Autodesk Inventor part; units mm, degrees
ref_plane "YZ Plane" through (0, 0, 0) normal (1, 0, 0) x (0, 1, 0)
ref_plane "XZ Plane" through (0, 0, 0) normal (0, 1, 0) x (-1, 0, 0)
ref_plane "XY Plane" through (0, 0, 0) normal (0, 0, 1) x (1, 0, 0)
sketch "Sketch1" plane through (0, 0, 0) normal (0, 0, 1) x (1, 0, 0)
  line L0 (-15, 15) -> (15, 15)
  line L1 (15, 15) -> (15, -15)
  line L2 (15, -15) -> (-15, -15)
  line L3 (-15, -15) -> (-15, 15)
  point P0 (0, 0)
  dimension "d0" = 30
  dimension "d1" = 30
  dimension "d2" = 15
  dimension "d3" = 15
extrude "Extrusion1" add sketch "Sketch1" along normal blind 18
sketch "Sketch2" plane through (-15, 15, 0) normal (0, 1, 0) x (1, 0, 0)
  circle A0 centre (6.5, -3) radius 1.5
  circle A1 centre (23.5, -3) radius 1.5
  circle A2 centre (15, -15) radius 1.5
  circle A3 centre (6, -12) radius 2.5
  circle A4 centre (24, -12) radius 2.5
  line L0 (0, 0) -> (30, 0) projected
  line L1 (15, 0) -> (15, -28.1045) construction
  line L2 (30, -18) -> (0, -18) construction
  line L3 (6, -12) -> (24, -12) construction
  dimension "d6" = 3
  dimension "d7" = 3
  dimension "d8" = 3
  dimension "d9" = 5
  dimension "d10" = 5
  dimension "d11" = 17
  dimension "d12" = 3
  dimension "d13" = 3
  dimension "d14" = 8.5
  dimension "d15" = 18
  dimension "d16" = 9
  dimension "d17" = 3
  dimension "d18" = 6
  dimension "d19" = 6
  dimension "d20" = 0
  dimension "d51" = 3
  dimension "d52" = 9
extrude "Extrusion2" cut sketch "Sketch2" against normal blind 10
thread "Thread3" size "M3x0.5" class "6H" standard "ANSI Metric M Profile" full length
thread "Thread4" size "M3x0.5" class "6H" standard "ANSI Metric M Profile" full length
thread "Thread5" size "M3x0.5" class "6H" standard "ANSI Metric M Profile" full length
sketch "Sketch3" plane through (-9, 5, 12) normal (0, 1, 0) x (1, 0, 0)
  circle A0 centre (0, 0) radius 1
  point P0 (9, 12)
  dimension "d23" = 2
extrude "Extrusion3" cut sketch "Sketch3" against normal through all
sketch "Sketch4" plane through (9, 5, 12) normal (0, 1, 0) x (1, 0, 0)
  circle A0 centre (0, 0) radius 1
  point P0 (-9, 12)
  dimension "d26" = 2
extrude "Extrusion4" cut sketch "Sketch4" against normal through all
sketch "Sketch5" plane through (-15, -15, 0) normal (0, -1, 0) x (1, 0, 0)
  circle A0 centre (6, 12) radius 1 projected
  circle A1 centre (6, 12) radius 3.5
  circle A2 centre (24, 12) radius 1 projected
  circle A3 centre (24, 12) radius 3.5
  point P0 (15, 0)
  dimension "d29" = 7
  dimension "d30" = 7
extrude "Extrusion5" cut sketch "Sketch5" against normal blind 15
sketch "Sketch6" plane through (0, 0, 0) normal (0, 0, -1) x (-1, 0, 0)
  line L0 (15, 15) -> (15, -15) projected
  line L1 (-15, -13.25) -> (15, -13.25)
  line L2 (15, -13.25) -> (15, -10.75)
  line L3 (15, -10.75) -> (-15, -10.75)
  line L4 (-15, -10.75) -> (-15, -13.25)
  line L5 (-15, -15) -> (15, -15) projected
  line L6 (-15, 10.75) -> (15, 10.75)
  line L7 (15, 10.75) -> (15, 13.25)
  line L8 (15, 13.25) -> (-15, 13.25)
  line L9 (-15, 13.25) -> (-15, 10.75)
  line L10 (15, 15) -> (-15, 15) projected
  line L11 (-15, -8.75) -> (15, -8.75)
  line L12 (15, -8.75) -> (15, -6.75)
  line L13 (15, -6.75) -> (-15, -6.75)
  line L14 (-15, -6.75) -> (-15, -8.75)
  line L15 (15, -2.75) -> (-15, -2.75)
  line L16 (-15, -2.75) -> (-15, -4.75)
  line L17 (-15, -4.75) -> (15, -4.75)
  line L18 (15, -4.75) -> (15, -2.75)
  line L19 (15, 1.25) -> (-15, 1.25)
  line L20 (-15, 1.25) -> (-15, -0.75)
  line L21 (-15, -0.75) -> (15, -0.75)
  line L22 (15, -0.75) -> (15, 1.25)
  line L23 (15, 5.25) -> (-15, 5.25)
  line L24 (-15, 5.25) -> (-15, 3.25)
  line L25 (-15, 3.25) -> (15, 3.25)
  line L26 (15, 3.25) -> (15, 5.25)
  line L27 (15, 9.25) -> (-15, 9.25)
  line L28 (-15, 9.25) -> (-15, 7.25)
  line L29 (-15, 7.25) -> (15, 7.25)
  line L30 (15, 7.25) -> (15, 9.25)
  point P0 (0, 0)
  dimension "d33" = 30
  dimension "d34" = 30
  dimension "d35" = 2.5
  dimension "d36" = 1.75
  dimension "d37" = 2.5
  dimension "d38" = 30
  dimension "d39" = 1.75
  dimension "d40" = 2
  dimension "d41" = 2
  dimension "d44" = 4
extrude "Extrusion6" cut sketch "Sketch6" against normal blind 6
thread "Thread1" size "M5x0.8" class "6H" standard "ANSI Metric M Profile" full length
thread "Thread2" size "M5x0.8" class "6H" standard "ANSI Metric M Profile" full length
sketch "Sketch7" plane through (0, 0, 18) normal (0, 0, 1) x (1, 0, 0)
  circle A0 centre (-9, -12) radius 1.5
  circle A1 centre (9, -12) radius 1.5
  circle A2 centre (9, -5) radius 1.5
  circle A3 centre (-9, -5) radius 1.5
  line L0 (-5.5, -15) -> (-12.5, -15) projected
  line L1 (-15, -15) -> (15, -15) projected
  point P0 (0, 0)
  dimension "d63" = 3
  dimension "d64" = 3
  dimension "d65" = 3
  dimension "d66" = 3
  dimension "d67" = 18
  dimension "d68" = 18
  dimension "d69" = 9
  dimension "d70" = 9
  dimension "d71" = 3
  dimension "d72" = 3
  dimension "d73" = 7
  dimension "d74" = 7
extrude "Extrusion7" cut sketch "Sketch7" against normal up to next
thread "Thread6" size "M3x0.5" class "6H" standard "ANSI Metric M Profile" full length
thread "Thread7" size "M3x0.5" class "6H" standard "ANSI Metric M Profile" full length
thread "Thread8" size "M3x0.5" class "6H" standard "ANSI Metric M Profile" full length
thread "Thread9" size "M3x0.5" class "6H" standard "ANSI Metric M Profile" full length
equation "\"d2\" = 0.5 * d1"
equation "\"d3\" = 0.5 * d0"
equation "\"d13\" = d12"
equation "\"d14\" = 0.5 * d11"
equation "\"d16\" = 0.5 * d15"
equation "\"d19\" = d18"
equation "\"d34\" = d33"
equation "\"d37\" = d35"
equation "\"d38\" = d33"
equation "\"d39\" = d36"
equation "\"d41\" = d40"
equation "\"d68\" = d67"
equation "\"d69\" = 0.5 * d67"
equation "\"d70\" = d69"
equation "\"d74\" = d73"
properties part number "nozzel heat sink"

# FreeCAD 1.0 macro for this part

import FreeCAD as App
import Part
import Sketcher
from FreeCAD import Vector

doc = App.newDocument("Part")
body = doc.addObject("PartDesign::Body", "Body")

# Sketch on XY plane
sketch1 = body.newObject("Sketcher::SketchObject", "Sketch")
sketch1.AttachmentSupport = (doc.getObject("XY_Plane"), [""])
sketch1.MapMode = "FlatFace"
sketch1.addGeometry([
    Part.LineSegment(Vector(15, 15, 0), Vector(-15, 15, 0)),
    Part.LineSegment(Vector(-15, 15, 0), Vector(-15, -15, 0)),
    Part.LineSegment(Vector(-15, -15, 0), Vector(15, -15, 0)),
    Part.LineSegment(Vector(15, -15, 0), Vector(15, 15, 0)),
], False)
sketch1.addConstraint([
    Sketcher.Constraint("Coincident", 0, 2, 1, 1),
    Sketcher.Constraint("Coincident", 1, 2, 2, 1),
    Sketcher.Constraint("Coincident", 2, 2, 3, 1),
    Sketcher.Constraint("Coincident", 3, 2, 0, 1),
    Sketcher.Constraint("Horizontal", 0),
    Sketcher.Constraint("Vertical", 1),
    Sketcher.Constraint("Horizontal", 2),
    Sketcher.Constraint("Vertical", 3),
    Sketcher.Constraint("Symmetric", 0, 2, 2, 2, -1, 1),
    Sketcher.Constraint("Equal", 2, 1),
    Sketcher.Constraint("DistanceX", 0, 2, 0, 1, 30.0),
])
pad1 = body.newObject("PartDesign::Pad", "Pad")
pad1.Profile = sketch1
pad1.Length = 18

# Sketch on XZ plane
sketch2 = body.newObject("Sketcher::SketchObject", "Sketch001")
sketch2.AttachmentSupport = (doc.getObject("XZ_Plane"), [""])
sketch2.MapMode = "FlatFace"
sketch2.AttachmentOffset = App.Placement(Vector(0, 0, -15), App.Rotation())
sketch2.addGeometry([
    Part.Circle(Vector(-8.5, 3, 0), Vector(0, 0, 1), 1.5),  # 0
    Part.Circle(Vector(8.5, 3, 0), Vector(0, 0, 1), 1.5),  # 1
    Part.Circle(Vector(0, 15, 0), Vector(0, 0, 1), 1.5),  # 2
    Part.Circle(Vector(-9, 12, 0), Vector(0, 0, 1), 2.5),  # 3
    Part.Circle(Vector(9, 12, 0), Vector(0, 0, 1), 2.5),  # 4
], False)
sketch2.addConstraint([
    Sketcher.Constraint("Equal", 0, 1),
    Sketcher.Constraint("Equal", 1, 2),
    Sketcher.Constraint("Equal", 3, 4),
    Sketcher.Constraint("Symmetric", 0, 3, 1, 3, -2),
    Sketcher.Constraint("Symmetric", 3, 3, 4, 3, -2),
    Sketcher.Constraint("PointOnObject", 2, 3, -2),
    Sketcher.Constraint("Diameter", 0, 3.0),
    Sketcher.Constraint("Diameter", 3, 5.0),
    Sketcher.Constraint("DistanceY", -1, 1, 0, 3, 3.0),
    Sketcher.Constraint("DistanceX", 3, 3, -1, 1, 9.0),
    Sketcher.Constraint("DistanceX", 0, 3, 1, 3, 17.0),
    Sketcher.Constraint("DistanceY", 0, 3, 3, 3, 9.0),
    Sketcher.Constraint("DistanceY", 3, 3, 2, 3, 3.0),
])
pocket1 = body.newObject("PartDesign::Pocket", "Pocket")
pocket1.Profile = sketch2
pocket1.Length = 10
pocket1.Reversed = True

# Sketch on XZ plane
sketch3 = body.newObject("Sketcher::SketchObject", "Sketch002")
sketch3.AttachmentSupport = (doc.getObject("XZ_Plane"), [""])
sketch3.MapMode = "FlatFace"
sketch3.AttachmentOffset = App.Placement(Vector(0, 0, -5), App.Rotation())
sketch3.addGeometry(Part.Circle(Vector(-9, 12, 0), Vector(0, 0, 1), 1), False)
sketch3.addConstraint([
    Sketcher.Constraint("Diameter", 0, 2.0),
    Sketcher.Constraint("DistanceX", 0, 3, -1, 1, 9.0),
    Sketcher.Constraint("DistanceY", -1, 1, 0, 3, 12.0),
])
pocket2 = body.newObject("PartDesign::Pocket", "Pocket001")
pocket2.Profile = sketch3
pocket2.Type = "ThroughAll"
pocket2.Reversed = True

# Sketch on XZ plane
sketch4 = body.newObject("Sketcher::SketchObject", "Sketch003")
sketch4.AttachmentSupport = (doc.getObject("XZ_Plane"), [""])
sketch4.MapMode = "FlatFace"
sketch4.AttachmentOffset = App.Placement(Vector(0, 0, -5), App.Rotation())
sketch4.addGeometry(Part.Circle(Vector(9, 12, 0), Vector(0, 0, 1), 1), False)
sketch4.addConstraint([
    Sketcher.Constraint("Diameter", 0, 2.0),
    Sketcher.Constraint("DistanceX", -1, 1, 0, 3, 9.0),
    Sketcher.Constraint("DistanceY", -1, 1, 0, 3, 12.0),
])
pocket3 = body.newObject("PartDesign::Pocket", "Pocket002")
pocket3.Profile = sketch4
pocket3.Type = "ThroughAll"
pocket3.Reversed = True

# Sketch on XZ plane
sketch5 = body.newObject("Sketcher::SketchObject", "Sketch004")
sketch5.AttachmentSupport = (doc.getObject("XZ_Plane"), [""])
sketch5.MapMode = "FlatFace"
sketch5.AttachmentOffset = App.Placement(Vector(0, 0, 15), App.Rotation())
sketch5.addGeometry([
    Part.Circle(Vector(-9, 12, 0), Vector(0, 0, 1), 3.5),
    Part.Circle(Vector(-9, 12, 0), Vector(0, 0, 1), 1),
    Part.Circle(Vector(9, 12, 0), Vector(0, 0, 1), 3.5),
    Part.Circle(Vector(9, 12, 0), Vector(0, 0, 1), 1),
], False)
sketch5.addConstraint([
    Sketcher.Constraint("Coincident", 1, 3, 0, 3),
    Sketcher.Constraint("Coincident", 3, 3, 2, 3),
    Sketcher.Constraint("Equal", 0, 2),
    Sketcher.Constraint("Equal", 1, 3),
    Sketcher.Constraint("Symmetric", 0, 3, 2, 3, -2),
    Sketcher.Constraint("Diameter", 0, 7.0),
    Sketcher.Constraint("Diameter", 1, 2.0),
    Sketcher.Constraint("DistanceX", 0, 3, -1, 1, 9.0),
    Sketcher.Constraint("DistanceY", -1, 1, 0, 3, 12.0),
])
pocket4 = body.newObject("PartDesign::Pocket", "Pocket003")
pocket4.Profile = sketch5
pocket4.Length = 15

# Sketch on XY plane
sketch6 = body.newObject("Sketcher::SketchObject", "Sketch005")
sketch6.AttachmentSupport = (doc.getObject("XY_Plane"), [""])
sketch6.MapMode = "FlatFace"
sketch6.addGeometry([
    Part.LineSegment(Vector(-15, -13.2, 0), Vector(-15, -10.8, 0)),  # 0
    Part.LineSegment(Vector(-15, -10.8, 0), Vector(15, -10.8, 0)),  # 1
    Part.LineSegment(Vector(15, -10.8, 0), Vector(15, -13.2, 0)),  # 2
    Part.LineSegment(Vector(15, -13.2, 0), Vector(-15, -13.2, 0)),  # 3
    Part.LineSegment(Vector(-15, -8.8, 0), Vector(-15, -6.8, 0)),  # 4
    Part.LineSegment(Vector(-15, -6.8, 0), Vector(15, -6.8, 0)),  # 5
    Part.LineSegment(Vector(15, -6.8, 0), Vector(15, -8.8, 0)),  # 6
    Part.LineSegment(Vector(15, -8.8, 0), Vector(-15, -8.8, 0)),  # 7
    Part.LineSegment(Vector(-15, -4.8, 0), Vector(-15, -2.8, 0)),  # 8
    Part.LineSegment(Vector(-15, -2.8, 0), Vector(15, -2.8, 0)),  # 9
    Part.LineSegment(Vector(15, -2.8, 0), Vector(15, -4.8, 0)),  # 10
    Part.LineSegment(Vector(15, -4.8, 0), Vector(-15, -4.8, 0)),  # 11
    Part.LineSegment(Vector(-15, -0.8, 0), Vector(-15, 1.2, 0)),  # 12
    Part.LineSegment(Vector(-15, 1.2, 0), Vector(15, 1.2, 0)),  # 13
    Part.LineSegment(Vector(15, 1.2, 0), Vector(15, -0.8, 0)),  # 14
    Part.LineSegment(Vector(15, -0.8, 0), Vector(-15, -0.8, 0)),  # 15
    Part.LineSegment(Vector(-15, 3.2, 0), Vector(-15, 5.2, 0)),  # 16
    Part.LineSegment(Vector(-15, 5.2, 0), Vector(15, 5.2, 0)),  # 17
    Part.LineSegment(Vector(15, 5.2, 0), Vector(15, 3.2, 0)),  # 18
    Part.LineSegment(Vector(15, 3.2, 0), Vector(-15, 3.2, 0)),  # 19
    Part.LineSegment(Vector(-15, 7.2, 0), Vector(-15, 9.2, 0)),  # 20
    Part.LineSegment(Vector(-15, 9.2, 0), Vector(15, 9.2, 0)),  # 21
    Part.LineSegment(Vector(15, 9.2, 0), Vector(15, 7.2, 0)),  # 22
    Part.LineSegment(Vector(15, 7.2, 0), Vector(-15, 7.2, 0)),  # 23
    Part.LineSegment(Vector(-15, 10.8, 0), Vector(-15, 13.2, 0)),  # 24
    Part.LineSegment(Vector(-15, 13.2, 0), Vector(15, 13.2, 0)),  # 25
    Part.LineSegment(Vector(15, 13.2, 0), Vector(15, 10.8, 0)),  # 26
    Part.LineSegment(Vector(15, 10.8, 0), Vector(-15, 10.8, 0)),  # 27
], False)
sketch6.addConstraint([
    Sketcher.Constraint("Coincident", 0, 2, 1, 1),
    Sketcher.Constraint("Coincident", 1, 2, 2, 1),
    Sketcher.Constraint("Coincident", 2, 2, 3, 1),
    Sketcher.Constraint("Coincident", 3, 2, 0, 1),
    Sketcher.Constraint("Coincident", 4, 2, 5, 1),
    Sketcher.Constraint("Coincident", 5, 2, 6, 1),
    Sketcher.Constraint("Coincident", 6, 2, 7, 1),
    Sketcher.Constraint("Coincident", 7, 2, 4, 1),
    Sketcher.Constraint("Coincident", 8, 2, 9, 1),
    Sketcher.Constraint("Coincident", 9, 2, 10, 1),
    Sketcher.Constraint("Coincident", 10, 2, 11, 1),
    Sketcher.Constraint("Coincident", 11, 2, 8, 1),
    Sketcher.Constraint("Coincident", 12, 2, 13, 1),
    Sketcher.Constraint("Coincident", 13, 2, 14, 1),
    Sketcher.Constraint("Coincident", 14, 2, 15, 1),
    Sketcher.Constraint("Coincident", 15, 2, 12, 1),
    Sketcher.Constraint("Coincident", 16, 2, 17, 1),
    Sketcher.Constraint("Coincident", 17, 2, 18, 1),
    Sketcher.Constraint("Coincident", 18, 2, 19, 1),
    Sketcher.Constraint("Coincident", 19, 2, 16, 1),
    Sketcher.Constraint("Coincident", 20, 2, 21, 1),
    Sketcher.Constraint("Coincident", 21, 2, 22, 1),
    Sketcher.Constraint("Coincident", 22, 2, 23, 1),
    Sketcher.Constraint("Coincident", 23, 2, 20, 1),
    Sketcher.Constraint("Coincident", 24, 2, 25, 1),
    Sketcher.Constraint("Coincident", 25, 2, 26, 1),
    Sketcher.Constraint("Coincident", 26, 2, 27, 1),
    Sketcher.Constraint("Coincident", 27, 2, 24, 1),
    Sketcher.Constraint("Vertical", 0),
    Sketcher.Constraint("Horizontal", 1),
    Sketcher.Constraint("Vertical", 2),
    Sketcher.Constraint("Horizontal", 3),
    Sketcher.Constraint("Vertical", 4),
    Sketcher.Constraint("Horizontal", 5),
    Sketcher.Constraint("Vertical", 6),
    Sketcher.Constraint("Horizontal", 7),
    Sketcher.Constraint("Vertical", 8),
    Sketcher.Constraint("Horizontal", 9),
    Sketcher.Constraint("Vertical", 10),
    Sketcher.Constraint("Horizontal", 11),
    Sketcher.Constraint("Vertical", 12),
    Sketcher.Constraint("Horizontal", 13),
    Sketcher.Constraint("Vertical", 14),
    Sketcher.Constraint("Horizontal", 15),
    Sketcher.Constraint("Vertical", 16),
    Sketcher.Constraint("Horizontal", 17),
    Sketcher.Constraint("Vertical", 18),
    Sketcher.Constraint("Horizontal", 19),
    Sketcher.Constraint("Vertical", 20),
    Sketcher.Constraint("Horizontal", 21),
    Sketcher.Constraint("Vertical", 22),
    Sketcher.Constraint("Horizontal", 23),
    Sketcher.Constraint("Vertical", 24),
    Sketcher.Constraint("Horizontal", 25),
    Sketcher.Constraint("Vertical", 26),
    Sketcher.Constraint("Horizontal", 27),
    Sketcher.Constraint("Symmetric", 2, 2, 24, 2, -1, 1),
    Sketcher.Constraint("Symmetric", 0, 2, 26, 2, -1, 1),
    Sketcher.Constraint("Vertical", 3, 2, 4, 2),
    Sketcher.Constraint("Vertical", 2, 2, 5, 2),
    Sketcher.Constraint("Vertical", 7, 2, 8, 2),
    Sketcher.Constraint("Vertical", 6, 2, 9, 2),
    Sketcher.Constraint("Vertical", 11, 2, 12, 2),
    Sketcher.Constraint("Vertical", 10, 2, 13, 2),
    Sketcher.Constraint("Vertical", 15, 2, 16, 2),
    Sketcher.Constraint("Vertical", 14, 2, 17, 2),
    Sketcher.Constraint("Vertical", 19, 2, 20, 2),
    Sketcher.Constraint("Vertical", 18, 2, 21, 2),
    Sketcher.Constraint("Vertical", 23, 2, 24, 2),
    Sketcher.Constraint("Equal", 6, 8),
    Sketcher.Constraint("Equal", 10, 12),
    Sketcher.Constraint("Equal", 14, 16),
    Sketcher.Constraint("Equal", 18, 20),
    Sketcher.Constraint("DistanceX", 1, 1, 1, 2, 30.0),
    Sketcher.Constraint("DistanceY", 4, 1, 4, 2, 2.0),
    Sketcher.Constraint("DistanceY", 0, 1, 0, 2, 2.5),
    Sketcher.Constraint("DistanceY", 0, 2, 4, 2, 4.0),
    Sketcher.Constraint("DistanceY", 4, 2, 8, 2, 4.0),
    Sketcher.Constraint("DistanceY", 8, 2, 12, 2, 4.0),
    Sketcher.Constraint("DistanceY", 12, 2, 16, 2, 4.0),
    Sketcher.Constraint("DistanceY", 16, 2, 20, 2, 4.0),
    Sketcher.Constraint("DistanceY", 20, 2, 24, 2, 4.0),
])
pocket5 = body.newObject("PartDesign::Pocket", "Pocket004")
pocket5.Profile = sketch6
pocket5.Length = 6
pocket5.Reversed = True

# Sketch on XY plane
sketch7 = body.newObject("Sketcher::SketchObject", "Sketch006")
sketch7.AttachmentSupport = (doc.getObject("XY_Plane"), [""])
sketch7.MapMode = "FlatFace"
sketch7.AttachmentOffset = App.Placement(Vector(0, 0, 18), App.Rotation())
sketch7.addGeometry([
    Part.Circle(Vector(-9, -12, 0), Vector(0, 0, 1), 1.5),
    Part.Circle(Vector(9, -12, 0), Vector(0, 0, 1), 1.5),
    Part.Circle(Vector(9, -5, 0), Vector(0, 0, 1), 1.5),
    Part.Circle(Vector(-9, -5, 0), Vector(0, 0, 1), 1.5),
], False)
sketch7.addConstraint([
    Sketcher.Constraint("Equal", 0, 1),
    Sketcher.Constraint("Equal", 1, 2),
    Sketcher.Constraint("Equal", 2, 3),
    Sketcher.Constraint("Symmetric", 0, 3, 1, 3, -2),
    Sketcher.Constraint("Symmetric", 2, 3, 3, 3, -2),
    Sketcher.Constraint("Vertical", 1, 3, 2, 3),
    Sketcher.Constraint("Diameter", 0, 3.0),
    Sketcher.Constraint("DistanceX", 0, 3, -1, 1, 9.0),
    Sketcher.Constraint("DistanceY", 1, 3, 2, 3, 7.0),
    Sketcher.Constraint("DistanceY", 0, 3, -1, 1, 12.0),
])
pocket6 = body.newObject("PartDesign::Pocket", "Pocket005")
pocket6.Profile = sketch7
pocket6.Length = 2.8377

doc.recompute()
